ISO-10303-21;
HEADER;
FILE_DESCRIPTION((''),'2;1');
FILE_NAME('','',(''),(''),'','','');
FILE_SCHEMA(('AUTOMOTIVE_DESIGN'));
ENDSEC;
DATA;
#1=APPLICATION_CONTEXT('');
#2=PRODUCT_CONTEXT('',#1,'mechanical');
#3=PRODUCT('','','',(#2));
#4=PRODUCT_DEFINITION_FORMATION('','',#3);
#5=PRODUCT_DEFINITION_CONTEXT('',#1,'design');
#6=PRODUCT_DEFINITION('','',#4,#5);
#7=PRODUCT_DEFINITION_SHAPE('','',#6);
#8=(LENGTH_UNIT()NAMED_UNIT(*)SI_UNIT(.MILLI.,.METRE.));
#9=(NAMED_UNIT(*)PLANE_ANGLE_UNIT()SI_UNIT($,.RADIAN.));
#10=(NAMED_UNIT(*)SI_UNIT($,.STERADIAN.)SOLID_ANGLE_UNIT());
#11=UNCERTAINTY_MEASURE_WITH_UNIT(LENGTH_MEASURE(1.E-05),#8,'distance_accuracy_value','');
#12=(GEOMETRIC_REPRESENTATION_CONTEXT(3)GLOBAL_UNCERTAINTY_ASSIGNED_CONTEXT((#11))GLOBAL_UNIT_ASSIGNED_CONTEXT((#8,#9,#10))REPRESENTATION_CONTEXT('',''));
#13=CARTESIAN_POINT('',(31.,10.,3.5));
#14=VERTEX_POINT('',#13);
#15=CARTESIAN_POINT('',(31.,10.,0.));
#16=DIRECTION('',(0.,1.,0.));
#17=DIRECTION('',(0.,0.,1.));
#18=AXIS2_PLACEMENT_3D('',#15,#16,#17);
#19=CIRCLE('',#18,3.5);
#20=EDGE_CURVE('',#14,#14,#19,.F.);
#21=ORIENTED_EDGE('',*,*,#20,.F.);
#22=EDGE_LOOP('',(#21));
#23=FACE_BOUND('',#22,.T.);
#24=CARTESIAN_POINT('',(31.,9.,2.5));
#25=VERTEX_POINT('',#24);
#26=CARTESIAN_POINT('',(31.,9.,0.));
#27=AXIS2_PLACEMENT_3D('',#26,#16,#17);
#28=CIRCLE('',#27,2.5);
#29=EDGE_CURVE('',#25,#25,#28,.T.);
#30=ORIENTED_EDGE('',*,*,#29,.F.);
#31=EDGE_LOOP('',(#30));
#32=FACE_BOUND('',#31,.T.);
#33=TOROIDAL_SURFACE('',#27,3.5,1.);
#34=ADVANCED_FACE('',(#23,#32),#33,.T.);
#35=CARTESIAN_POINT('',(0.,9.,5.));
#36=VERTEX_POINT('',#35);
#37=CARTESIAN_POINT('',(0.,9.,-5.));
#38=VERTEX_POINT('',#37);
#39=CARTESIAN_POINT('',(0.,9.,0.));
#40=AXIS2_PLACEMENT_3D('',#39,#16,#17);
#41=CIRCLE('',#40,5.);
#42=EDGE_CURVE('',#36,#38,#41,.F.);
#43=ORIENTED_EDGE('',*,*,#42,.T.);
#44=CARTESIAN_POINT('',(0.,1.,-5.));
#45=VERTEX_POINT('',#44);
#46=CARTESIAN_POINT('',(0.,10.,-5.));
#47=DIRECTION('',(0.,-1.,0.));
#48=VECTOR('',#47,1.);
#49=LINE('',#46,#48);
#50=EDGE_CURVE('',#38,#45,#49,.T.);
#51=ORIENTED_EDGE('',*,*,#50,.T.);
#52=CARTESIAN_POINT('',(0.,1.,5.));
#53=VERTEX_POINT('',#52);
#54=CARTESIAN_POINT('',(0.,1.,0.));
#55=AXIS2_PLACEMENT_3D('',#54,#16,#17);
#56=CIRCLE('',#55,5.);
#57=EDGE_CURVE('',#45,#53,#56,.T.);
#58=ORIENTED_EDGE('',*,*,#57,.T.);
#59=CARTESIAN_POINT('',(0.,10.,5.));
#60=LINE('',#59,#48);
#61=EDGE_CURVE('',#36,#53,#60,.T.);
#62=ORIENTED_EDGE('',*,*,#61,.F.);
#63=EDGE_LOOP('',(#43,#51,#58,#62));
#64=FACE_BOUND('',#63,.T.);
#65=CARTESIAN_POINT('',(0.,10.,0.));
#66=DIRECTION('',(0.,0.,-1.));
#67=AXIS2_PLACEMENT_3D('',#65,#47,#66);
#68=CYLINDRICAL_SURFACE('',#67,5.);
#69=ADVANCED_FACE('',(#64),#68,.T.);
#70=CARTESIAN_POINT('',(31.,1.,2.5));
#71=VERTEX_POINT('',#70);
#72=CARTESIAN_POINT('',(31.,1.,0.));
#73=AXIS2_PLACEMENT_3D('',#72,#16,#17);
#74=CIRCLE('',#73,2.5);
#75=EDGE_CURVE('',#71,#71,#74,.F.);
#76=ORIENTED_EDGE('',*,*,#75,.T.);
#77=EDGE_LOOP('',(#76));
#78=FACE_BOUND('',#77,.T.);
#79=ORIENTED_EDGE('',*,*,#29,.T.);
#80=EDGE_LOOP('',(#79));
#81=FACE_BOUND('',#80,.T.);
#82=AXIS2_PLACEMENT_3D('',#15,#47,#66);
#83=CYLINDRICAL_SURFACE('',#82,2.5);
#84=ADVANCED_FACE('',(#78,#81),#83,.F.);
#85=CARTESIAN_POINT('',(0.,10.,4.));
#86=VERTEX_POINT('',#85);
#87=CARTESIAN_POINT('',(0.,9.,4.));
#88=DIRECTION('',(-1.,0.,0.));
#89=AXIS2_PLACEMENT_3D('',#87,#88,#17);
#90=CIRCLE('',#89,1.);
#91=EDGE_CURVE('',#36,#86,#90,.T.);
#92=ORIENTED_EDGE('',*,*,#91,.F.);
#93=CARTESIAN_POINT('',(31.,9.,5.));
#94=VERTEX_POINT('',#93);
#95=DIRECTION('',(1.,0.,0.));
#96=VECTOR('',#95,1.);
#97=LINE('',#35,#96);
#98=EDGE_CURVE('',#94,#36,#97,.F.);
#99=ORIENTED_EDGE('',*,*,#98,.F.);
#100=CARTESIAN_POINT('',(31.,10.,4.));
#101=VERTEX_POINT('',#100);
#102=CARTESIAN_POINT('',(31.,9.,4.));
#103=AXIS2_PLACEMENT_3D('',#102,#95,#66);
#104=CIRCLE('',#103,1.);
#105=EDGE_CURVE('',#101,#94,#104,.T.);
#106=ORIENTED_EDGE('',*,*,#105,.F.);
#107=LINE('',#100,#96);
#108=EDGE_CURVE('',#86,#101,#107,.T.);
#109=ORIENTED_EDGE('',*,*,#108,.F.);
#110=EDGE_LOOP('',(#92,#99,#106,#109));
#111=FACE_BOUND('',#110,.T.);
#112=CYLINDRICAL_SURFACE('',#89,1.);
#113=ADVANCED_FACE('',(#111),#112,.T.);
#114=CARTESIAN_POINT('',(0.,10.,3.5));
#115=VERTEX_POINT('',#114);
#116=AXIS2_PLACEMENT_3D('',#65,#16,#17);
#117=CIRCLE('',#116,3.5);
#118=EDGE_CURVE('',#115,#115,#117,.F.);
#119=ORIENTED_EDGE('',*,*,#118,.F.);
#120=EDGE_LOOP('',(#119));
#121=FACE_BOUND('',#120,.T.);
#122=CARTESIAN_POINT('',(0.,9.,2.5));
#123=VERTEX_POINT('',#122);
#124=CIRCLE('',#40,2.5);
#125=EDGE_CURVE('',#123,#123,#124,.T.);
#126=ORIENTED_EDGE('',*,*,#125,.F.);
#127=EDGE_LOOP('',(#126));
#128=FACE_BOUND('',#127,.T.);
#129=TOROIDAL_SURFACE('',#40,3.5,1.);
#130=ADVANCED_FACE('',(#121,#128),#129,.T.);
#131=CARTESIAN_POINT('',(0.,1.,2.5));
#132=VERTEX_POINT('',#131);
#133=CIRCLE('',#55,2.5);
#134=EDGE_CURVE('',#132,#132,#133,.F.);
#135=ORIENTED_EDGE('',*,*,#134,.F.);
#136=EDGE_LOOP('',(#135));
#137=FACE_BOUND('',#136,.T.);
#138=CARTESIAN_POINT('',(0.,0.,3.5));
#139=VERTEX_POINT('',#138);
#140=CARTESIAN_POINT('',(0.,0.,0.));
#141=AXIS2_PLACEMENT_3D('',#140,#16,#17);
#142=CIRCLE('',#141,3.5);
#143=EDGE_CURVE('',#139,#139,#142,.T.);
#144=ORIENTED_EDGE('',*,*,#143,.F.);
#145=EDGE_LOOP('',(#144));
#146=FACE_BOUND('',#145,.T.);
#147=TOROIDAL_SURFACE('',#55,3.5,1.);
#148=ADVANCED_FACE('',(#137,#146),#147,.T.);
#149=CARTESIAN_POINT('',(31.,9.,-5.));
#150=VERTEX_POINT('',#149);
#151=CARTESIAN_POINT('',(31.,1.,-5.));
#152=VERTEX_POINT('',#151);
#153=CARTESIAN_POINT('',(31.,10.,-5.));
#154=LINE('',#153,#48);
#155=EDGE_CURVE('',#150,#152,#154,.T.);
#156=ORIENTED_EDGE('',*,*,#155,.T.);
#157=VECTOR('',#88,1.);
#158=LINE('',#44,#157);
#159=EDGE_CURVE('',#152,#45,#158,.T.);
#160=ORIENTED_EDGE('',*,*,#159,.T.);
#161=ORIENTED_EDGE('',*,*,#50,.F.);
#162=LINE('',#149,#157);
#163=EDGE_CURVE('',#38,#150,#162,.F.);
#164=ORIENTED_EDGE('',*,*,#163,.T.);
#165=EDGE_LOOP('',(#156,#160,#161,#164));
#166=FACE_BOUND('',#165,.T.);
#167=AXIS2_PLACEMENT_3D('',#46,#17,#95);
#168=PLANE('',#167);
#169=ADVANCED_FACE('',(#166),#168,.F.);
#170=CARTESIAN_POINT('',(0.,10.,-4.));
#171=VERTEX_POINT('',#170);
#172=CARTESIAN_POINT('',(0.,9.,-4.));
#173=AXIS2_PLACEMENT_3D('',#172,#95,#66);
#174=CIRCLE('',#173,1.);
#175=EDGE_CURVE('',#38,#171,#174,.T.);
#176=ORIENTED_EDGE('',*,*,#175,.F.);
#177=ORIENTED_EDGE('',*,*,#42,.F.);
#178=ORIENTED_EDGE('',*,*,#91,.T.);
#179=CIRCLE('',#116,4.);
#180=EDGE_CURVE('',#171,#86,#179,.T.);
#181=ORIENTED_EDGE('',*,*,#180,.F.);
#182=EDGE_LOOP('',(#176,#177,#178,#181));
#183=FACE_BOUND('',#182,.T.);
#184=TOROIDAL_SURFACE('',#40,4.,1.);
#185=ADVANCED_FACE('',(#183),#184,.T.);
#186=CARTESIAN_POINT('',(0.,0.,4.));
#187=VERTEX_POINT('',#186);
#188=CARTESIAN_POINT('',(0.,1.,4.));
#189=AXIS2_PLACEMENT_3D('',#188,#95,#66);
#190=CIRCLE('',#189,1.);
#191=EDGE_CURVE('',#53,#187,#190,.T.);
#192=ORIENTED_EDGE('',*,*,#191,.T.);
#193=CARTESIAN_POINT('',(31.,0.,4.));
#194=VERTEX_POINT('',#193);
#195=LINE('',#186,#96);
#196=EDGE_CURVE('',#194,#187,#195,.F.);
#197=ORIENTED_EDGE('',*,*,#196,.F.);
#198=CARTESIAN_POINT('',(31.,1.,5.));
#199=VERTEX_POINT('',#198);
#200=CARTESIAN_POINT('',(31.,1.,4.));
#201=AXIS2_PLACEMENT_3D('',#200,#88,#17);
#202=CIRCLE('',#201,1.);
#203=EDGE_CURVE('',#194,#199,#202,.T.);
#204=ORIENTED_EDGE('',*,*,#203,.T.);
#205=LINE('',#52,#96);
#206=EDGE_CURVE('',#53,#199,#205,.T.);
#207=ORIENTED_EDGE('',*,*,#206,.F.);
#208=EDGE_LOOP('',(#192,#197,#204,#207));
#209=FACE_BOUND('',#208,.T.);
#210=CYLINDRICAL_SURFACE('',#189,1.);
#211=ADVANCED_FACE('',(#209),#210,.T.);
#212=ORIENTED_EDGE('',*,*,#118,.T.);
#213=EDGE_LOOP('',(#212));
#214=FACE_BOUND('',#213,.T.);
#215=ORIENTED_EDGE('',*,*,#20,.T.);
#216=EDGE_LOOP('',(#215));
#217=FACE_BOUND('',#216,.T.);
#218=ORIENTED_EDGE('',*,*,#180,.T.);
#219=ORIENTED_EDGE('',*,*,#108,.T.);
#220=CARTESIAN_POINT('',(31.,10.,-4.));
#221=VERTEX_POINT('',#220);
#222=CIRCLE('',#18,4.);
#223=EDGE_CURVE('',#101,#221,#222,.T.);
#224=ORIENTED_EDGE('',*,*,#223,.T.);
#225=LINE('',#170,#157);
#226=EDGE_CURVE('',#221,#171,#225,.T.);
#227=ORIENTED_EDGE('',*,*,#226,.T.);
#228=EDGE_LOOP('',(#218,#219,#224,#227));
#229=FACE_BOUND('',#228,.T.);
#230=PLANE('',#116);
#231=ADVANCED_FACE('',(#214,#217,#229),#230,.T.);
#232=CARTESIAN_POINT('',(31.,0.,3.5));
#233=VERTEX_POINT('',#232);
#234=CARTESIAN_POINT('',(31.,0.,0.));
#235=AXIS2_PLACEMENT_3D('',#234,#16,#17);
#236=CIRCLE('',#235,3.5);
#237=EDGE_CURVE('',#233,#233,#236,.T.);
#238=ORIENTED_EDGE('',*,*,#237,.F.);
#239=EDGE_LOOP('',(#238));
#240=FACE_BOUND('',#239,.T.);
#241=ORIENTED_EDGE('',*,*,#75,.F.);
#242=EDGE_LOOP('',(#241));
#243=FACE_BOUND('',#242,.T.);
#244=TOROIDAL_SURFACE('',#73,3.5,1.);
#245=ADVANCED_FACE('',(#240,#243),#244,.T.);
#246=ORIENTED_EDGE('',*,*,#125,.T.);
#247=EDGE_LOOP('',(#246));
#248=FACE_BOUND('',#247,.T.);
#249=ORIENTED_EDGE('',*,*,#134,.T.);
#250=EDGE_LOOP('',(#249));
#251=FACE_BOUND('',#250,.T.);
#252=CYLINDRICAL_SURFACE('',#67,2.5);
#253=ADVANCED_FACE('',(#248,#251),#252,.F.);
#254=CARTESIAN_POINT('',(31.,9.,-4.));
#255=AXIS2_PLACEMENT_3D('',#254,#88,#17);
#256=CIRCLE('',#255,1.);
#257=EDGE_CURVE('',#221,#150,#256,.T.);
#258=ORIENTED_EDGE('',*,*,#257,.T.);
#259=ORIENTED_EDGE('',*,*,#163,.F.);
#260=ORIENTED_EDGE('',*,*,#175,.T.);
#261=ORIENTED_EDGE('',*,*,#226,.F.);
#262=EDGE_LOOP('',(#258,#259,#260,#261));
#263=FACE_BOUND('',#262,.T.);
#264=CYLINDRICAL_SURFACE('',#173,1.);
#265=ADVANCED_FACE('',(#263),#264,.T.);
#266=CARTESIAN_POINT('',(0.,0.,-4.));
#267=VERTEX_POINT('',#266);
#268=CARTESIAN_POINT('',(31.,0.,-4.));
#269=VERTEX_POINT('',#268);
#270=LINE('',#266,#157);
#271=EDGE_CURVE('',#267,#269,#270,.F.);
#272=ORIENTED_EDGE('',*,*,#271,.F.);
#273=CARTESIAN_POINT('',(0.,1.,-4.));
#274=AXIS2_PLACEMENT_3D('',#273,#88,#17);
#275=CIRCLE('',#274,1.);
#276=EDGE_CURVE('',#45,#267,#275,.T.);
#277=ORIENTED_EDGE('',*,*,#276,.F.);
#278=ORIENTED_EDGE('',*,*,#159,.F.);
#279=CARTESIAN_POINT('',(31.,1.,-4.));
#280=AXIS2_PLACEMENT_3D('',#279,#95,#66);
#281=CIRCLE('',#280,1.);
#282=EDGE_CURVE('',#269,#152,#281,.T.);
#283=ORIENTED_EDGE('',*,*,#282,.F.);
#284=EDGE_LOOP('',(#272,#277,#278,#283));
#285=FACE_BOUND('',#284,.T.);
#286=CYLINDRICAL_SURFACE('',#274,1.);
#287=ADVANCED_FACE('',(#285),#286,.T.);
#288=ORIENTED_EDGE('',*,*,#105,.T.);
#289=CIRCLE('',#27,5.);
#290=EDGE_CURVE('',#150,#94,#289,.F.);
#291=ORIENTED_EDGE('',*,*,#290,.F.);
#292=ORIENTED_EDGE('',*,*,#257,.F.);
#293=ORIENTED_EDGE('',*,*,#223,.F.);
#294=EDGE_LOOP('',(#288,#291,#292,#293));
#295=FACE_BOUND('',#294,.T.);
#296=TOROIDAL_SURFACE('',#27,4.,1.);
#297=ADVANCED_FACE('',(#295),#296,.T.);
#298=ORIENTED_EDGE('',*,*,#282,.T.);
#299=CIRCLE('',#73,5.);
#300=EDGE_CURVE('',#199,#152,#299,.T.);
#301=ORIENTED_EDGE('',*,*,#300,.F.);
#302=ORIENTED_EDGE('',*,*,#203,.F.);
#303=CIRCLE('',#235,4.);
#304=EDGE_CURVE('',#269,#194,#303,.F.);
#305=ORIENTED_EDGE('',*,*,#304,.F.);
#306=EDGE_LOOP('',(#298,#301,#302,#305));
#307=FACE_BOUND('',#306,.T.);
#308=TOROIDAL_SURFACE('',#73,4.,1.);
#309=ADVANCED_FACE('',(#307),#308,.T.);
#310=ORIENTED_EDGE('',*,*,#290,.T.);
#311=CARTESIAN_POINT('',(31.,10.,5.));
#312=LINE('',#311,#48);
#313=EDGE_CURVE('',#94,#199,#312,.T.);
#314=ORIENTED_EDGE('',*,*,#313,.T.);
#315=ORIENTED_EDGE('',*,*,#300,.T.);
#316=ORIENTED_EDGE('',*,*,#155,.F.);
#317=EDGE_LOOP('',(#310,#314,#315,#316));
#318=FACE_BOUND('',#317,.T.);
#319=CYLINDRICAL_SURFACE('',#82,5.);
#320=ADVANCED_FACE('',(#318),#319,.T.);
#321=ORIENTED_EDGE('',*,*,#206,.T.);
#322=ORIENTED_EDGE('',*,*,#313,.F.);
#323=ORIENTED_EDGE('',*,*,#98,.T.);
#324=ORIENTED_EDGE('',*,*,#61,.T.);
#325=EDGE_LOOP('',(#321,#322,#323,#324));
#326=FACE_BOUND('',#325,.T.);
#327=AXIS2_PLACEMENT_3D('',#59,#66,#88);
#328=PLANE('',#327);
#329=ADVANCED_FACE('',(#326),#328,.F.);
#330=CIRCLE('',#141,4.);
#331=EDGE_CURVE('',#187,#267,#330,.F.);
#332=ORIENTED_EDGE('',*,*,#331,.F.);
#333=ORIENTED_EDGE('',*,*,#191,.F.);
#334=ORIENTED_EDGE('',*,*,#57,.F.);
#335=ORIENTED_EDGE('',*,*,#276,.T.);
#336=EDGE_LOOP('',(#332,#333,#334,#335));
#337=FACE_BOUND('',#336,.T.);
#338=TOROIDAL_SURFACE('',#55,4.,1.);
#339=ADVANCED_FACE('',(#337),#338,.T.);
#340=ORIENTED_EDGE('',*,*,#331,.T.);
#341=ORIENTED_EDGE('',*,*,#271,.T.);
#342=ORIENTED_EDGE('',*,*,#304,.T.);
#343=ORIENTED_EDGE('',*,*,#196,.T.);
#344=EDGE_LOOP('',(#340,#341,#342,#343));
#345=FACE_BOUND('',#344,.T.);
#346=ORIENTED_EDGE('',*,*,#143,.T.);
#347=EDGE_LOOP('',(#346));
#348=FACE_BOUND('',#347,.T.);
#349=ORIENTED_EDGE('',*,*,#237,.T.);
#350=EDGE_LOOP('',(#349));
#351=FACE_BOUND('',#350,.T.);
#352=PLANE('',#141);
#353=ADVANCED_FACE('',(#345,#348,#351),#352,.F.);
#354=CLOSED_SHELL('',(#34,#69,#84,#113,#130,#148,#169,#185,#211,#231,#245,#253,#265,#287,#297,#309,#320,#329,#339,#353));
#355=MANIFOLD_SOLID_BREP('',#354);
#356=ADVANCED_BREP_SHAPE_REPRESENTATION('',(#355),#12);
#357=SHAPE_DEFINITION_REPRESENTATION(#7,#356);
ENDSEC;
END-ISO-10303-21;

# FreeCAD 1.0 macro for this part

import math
import FreeCAD as App
import Part
import Sketcher

V = App.Vector


def edges_at(feature, points):
    """Names of the edges that pass closest to the given points."""
    edges = feature.Shape.Edges
    near = lambda p: min(range(len(edges)), key=lambda i: edges[i].distToShape(Part.Vertex(*p))[0])
    return sorted({f"Edge{near(p) + 1}" for p in points})

doc = App.newDocument("Part")
body = doc.addObject("PartDesign::Body", "Body")

sketch1 = body.newObject("Sketcher::SketchObject", "Sketch")
sketch1.AttachmentSupport = (doc.getObject("XZ_Plane"), [""])
sketch1.MapMode = "FlatFace"
sketch1.addGeometry([
    Part.LineSegment(V(31, -5, 0), V(0, -5, 0)),
    Part.ArcOfCircle(Part.Circle(V(0, 0, 0), V(0, 0, 1), 5), math.radians(90), math.radians(270)),
    Part.LineSegment(V(0, 5, 0), V(31, 5, 0)),
    Part.ArcOfCircle(Part.Circle(V(31, 0, 0), V(0, 0, 1), 5), math.radians(-90), math.radians(90)),
    Part.Circle(V(31, 0, 0), V(0, 0, 1), 2.5),
    Part.Circle(V(0, 0, 0), V(0, 0, 1), 2.5),
], False)
sketch1.addConstraint([
    Sketcher.Constraint("Tangent", 0, 2, 1, 2),
    Sketcher.Constraint("Tangent", 1, 1, 2, 1),
    Sketcher.Constraint("Tangent", 2, 2, 3, 2),
    Sketcher.Constraint("Tangent", 3, 1, 0, 1),
    Sketcher.Constraint("Horizontal", 0),
    Sketcher.Constraint("Horizontal", 2),
    Sketcher.Constraint("Coincident", 1, 3, -1, 1),
    Sketcher.Constraint("Coincident", 5, 3, -1, 1),
    Sketcher.Constraint("Coincident", 4, 3, 3, 3),
    Sketcher.Constraint("Equal", 4, 5),
    Sketcher.Constraint("Diameter", 4, 5.0),
    Sketcher.Constraint("Radius", 1, 5.0),
    Sketcher.Constraint("DistanceX", 0, 2, 0, 1, 31.0),
])
pad1 = body.newObject("PartDesign::Pad", "Pad")
pad1.Profile = sketch1
pad1.Length = 10
pad1.Reversed = True
doc.recompute()

fillet = body.newObject("PartDesign::Fillet", "Fillet")
fillet.Base = (pad1, edges_at(pad1, [
    (-2.5, 0, 0),
    (-2.5, 10, 0),
    (36, 10, 0),
    (28.5, 0, 0),
    (28.5, 10, 0),
    (15.5, 10, -5),
    (-5, 10, 0),
    (15.5, 0, -5),
    (36, 0, 0),
    (15.5, 0, 5),
    (-5, 0, 0),
    (15.5, 10, 5),
]))
fillet.Radius = 1

doc.recompute()
